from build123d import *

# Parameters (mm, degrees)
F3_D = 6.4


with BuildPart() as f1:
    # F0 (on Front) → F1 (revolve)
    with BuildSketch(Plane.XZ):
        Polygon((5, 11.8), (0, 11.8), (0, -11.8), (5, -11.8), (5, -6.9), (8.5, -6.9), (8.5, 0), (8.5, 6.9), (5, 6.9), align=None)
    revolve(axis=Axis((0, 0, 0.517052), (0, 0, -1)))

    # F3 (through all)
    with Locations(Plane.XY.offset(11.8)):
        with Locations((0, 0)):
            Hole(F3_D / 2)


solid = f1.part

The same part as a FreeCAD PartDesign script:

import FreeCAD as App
import Part
import Sketcher
from FreeCAD import Vector

doc = App.newDocument("Part")
body = doc.addObject("PartDesign::Body", "Body")

# Sketch on XZ plane
sketch1 = doc.addObject("Sketcher::SketchObject", "Sketch")
body.addObject(sketch1)
sketch1.AttachmentSupport = (doc.XZ_Plane, [""])
sketch1.MapMode = "FlatFace"
sketch1.addGeometry([
    Part.LineSegment(Vector(5, 11.8, 0), Vector(0, 11.8, 0)),  # 0
    Part.LineSegment(Vector(0, 11.8, 0), Vector(0, -11.8, 0)),  # 1
    Part.LineSegment(Vector(0, -11.8, 0), Vector(5, -11.8, 0)),  # 2
    Part.LineSegment(Vector(5, -11.8, 0), Vector(5, -6.9, 0)),  # 3
    Part.LineSegment(Vector(5, -6.9, 0), Vector(8.5, -6.9, 0)),  # 4
    Part.LineSegment(Vector(8.5, -6.9, 0), Vector(8.5, 6.9, 0)),  # 5
    Part.LineSegment(Vector(8.5, 6.9, 0), Vector(5, 6.9, 0)),  # 6
    Part.LineSegment(Vector(5, 6.9, 0), Vector(5, 11.8, 0)),  # 7
], False)
sketch1.addConstraint([
    Sketcher.Constraint("Coincident", 0, 2, 1, 1),
    Sketcher.Constraint("Coincident", 1, 2, 2, 1),
    Sketcher.Constraint("Coincident", 2, 2, 3, 1),
    Sketcher.Constraint("Coincident", 3, 2, 4, 1),
    Sketcher.Constraint("Coincident", 4, 2, 5, 1),
    Sketcher.Constraint("Coincident", 5, 2, 6, 1),
    Sketcher.Constraint("Coincident", 6, 2, 7, 1),
    Sketcher.Constraint("Coincident", 7, 2, 0, 1),
    Sketcher.Constraint("Horizontal", 0),
    Sketcher.Constraint("Vertical", 1),
    Sketcher.Constraint("Horizontal", 2),
    Sketcher.Constraint("Vertical", 3),
    Sketcher.Constraint("Horizontal", 4),
    Sketcher.Constraint("Vertical", 5),
    Sketcher.Constraint("Horizontal", 6),
    Sketcher.Constraint("Vertical", 7),
    Sketcher.Constraint("Symmetric", 0, 2, 1, 2, -1, 1),
    Sketcher.Constraint("Symmetric", 3, 2, 6, 2, -1),
    Sketcher.Constraint("DistanceX", 0, 2, 0, 1, 5.0),
    Sketcher.Constraint("DistanceX", 4, 1, 4, 2, 3.5),
    Sketcher.Constraint("DistanceY", 1, 2, 1, 1, 23.6),
    Sketcher.Constraint("DistanceY", 3, 1, 3, 2, 4.9),
])
revolution = doc.addObject("PartDesign::Revolution", "Revolution")
body.addObject(revolution)
revolution.Profile = sketch1
revolution.ReferenceAxis = (sketch1, ["V_Axis"])
revolution.Angle = 360

# Sketch on XY plane
sketch2 = doc.addObject("Sketcher::SketchObject", "Sketch001")
body.addObject(sketch2)
sketch2.AttachmentSupport = (doc.XY_Plane, [""])
sketch2.MapMode = "FlatFace"
sketch2.AttachmentOffset = App.Placement(Vector(0, 0, 11.8), App.Rotation())
sketch2.addGeometry(Part.Circle(Vector(0, 0, 0), Vector(0, 0, 1), 3.2), False)
sketch2.addConstraint([
    Sketcher.Constraint("Coincident", 0, 3, -1, 1),
    Sketcher.Constraint("Diameter", 0, 6.4),
])
doc.recompute()
hole = doc.addObject("PartDesign::Hole", "Hole")
body.addObject(hole)
hole.Profile = sketch2
hole.ThreadType = "None"
hole.Diameter = 6.4
hole.DepthType = "ThroughAll"

doc.recompute()
